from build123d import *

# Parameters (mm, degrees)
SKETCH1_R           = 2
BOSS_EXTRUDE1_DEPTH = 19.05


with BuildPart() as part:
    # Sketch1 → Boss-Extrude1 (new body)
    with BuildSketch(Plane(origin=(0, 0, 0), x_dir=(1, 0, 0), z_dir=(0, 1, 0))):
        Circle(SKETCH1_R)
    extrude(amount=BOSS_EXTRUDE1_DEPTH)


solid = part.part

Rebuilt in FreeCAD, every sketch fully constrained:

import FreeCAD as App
import Part
import Sketcher

V = App.Vector

doc = App.newDocument("Part")
body = doc.addObject("PartDesign::Body", "Body")

# Sketch on XZ plane
sketch1 = body.newObject("Sketcher::SketchObject", "Sketch")
sketch1.AttachmentSupport = (doc.getObject("XZ_Plane"), [""])
sketch1.MapMode = "FlatFace"
sketch1.addGeometry(Part.Circle(V(0, 0, 0), V(0, 0, 1), 2), False)
sketch1.addConstraint([
    Sketcher.Constraint("Coincident", 0, 3, -1, 1),
    Sketcher.Constraint("Diameter", 0, 4.0),
])
pad1 = body.newObject("PartDesign::Pad", "Pad")
pad1.Profile = sketch1
pad1.Length = 19.05
pad1.Reversed = True

doc.recompute()
